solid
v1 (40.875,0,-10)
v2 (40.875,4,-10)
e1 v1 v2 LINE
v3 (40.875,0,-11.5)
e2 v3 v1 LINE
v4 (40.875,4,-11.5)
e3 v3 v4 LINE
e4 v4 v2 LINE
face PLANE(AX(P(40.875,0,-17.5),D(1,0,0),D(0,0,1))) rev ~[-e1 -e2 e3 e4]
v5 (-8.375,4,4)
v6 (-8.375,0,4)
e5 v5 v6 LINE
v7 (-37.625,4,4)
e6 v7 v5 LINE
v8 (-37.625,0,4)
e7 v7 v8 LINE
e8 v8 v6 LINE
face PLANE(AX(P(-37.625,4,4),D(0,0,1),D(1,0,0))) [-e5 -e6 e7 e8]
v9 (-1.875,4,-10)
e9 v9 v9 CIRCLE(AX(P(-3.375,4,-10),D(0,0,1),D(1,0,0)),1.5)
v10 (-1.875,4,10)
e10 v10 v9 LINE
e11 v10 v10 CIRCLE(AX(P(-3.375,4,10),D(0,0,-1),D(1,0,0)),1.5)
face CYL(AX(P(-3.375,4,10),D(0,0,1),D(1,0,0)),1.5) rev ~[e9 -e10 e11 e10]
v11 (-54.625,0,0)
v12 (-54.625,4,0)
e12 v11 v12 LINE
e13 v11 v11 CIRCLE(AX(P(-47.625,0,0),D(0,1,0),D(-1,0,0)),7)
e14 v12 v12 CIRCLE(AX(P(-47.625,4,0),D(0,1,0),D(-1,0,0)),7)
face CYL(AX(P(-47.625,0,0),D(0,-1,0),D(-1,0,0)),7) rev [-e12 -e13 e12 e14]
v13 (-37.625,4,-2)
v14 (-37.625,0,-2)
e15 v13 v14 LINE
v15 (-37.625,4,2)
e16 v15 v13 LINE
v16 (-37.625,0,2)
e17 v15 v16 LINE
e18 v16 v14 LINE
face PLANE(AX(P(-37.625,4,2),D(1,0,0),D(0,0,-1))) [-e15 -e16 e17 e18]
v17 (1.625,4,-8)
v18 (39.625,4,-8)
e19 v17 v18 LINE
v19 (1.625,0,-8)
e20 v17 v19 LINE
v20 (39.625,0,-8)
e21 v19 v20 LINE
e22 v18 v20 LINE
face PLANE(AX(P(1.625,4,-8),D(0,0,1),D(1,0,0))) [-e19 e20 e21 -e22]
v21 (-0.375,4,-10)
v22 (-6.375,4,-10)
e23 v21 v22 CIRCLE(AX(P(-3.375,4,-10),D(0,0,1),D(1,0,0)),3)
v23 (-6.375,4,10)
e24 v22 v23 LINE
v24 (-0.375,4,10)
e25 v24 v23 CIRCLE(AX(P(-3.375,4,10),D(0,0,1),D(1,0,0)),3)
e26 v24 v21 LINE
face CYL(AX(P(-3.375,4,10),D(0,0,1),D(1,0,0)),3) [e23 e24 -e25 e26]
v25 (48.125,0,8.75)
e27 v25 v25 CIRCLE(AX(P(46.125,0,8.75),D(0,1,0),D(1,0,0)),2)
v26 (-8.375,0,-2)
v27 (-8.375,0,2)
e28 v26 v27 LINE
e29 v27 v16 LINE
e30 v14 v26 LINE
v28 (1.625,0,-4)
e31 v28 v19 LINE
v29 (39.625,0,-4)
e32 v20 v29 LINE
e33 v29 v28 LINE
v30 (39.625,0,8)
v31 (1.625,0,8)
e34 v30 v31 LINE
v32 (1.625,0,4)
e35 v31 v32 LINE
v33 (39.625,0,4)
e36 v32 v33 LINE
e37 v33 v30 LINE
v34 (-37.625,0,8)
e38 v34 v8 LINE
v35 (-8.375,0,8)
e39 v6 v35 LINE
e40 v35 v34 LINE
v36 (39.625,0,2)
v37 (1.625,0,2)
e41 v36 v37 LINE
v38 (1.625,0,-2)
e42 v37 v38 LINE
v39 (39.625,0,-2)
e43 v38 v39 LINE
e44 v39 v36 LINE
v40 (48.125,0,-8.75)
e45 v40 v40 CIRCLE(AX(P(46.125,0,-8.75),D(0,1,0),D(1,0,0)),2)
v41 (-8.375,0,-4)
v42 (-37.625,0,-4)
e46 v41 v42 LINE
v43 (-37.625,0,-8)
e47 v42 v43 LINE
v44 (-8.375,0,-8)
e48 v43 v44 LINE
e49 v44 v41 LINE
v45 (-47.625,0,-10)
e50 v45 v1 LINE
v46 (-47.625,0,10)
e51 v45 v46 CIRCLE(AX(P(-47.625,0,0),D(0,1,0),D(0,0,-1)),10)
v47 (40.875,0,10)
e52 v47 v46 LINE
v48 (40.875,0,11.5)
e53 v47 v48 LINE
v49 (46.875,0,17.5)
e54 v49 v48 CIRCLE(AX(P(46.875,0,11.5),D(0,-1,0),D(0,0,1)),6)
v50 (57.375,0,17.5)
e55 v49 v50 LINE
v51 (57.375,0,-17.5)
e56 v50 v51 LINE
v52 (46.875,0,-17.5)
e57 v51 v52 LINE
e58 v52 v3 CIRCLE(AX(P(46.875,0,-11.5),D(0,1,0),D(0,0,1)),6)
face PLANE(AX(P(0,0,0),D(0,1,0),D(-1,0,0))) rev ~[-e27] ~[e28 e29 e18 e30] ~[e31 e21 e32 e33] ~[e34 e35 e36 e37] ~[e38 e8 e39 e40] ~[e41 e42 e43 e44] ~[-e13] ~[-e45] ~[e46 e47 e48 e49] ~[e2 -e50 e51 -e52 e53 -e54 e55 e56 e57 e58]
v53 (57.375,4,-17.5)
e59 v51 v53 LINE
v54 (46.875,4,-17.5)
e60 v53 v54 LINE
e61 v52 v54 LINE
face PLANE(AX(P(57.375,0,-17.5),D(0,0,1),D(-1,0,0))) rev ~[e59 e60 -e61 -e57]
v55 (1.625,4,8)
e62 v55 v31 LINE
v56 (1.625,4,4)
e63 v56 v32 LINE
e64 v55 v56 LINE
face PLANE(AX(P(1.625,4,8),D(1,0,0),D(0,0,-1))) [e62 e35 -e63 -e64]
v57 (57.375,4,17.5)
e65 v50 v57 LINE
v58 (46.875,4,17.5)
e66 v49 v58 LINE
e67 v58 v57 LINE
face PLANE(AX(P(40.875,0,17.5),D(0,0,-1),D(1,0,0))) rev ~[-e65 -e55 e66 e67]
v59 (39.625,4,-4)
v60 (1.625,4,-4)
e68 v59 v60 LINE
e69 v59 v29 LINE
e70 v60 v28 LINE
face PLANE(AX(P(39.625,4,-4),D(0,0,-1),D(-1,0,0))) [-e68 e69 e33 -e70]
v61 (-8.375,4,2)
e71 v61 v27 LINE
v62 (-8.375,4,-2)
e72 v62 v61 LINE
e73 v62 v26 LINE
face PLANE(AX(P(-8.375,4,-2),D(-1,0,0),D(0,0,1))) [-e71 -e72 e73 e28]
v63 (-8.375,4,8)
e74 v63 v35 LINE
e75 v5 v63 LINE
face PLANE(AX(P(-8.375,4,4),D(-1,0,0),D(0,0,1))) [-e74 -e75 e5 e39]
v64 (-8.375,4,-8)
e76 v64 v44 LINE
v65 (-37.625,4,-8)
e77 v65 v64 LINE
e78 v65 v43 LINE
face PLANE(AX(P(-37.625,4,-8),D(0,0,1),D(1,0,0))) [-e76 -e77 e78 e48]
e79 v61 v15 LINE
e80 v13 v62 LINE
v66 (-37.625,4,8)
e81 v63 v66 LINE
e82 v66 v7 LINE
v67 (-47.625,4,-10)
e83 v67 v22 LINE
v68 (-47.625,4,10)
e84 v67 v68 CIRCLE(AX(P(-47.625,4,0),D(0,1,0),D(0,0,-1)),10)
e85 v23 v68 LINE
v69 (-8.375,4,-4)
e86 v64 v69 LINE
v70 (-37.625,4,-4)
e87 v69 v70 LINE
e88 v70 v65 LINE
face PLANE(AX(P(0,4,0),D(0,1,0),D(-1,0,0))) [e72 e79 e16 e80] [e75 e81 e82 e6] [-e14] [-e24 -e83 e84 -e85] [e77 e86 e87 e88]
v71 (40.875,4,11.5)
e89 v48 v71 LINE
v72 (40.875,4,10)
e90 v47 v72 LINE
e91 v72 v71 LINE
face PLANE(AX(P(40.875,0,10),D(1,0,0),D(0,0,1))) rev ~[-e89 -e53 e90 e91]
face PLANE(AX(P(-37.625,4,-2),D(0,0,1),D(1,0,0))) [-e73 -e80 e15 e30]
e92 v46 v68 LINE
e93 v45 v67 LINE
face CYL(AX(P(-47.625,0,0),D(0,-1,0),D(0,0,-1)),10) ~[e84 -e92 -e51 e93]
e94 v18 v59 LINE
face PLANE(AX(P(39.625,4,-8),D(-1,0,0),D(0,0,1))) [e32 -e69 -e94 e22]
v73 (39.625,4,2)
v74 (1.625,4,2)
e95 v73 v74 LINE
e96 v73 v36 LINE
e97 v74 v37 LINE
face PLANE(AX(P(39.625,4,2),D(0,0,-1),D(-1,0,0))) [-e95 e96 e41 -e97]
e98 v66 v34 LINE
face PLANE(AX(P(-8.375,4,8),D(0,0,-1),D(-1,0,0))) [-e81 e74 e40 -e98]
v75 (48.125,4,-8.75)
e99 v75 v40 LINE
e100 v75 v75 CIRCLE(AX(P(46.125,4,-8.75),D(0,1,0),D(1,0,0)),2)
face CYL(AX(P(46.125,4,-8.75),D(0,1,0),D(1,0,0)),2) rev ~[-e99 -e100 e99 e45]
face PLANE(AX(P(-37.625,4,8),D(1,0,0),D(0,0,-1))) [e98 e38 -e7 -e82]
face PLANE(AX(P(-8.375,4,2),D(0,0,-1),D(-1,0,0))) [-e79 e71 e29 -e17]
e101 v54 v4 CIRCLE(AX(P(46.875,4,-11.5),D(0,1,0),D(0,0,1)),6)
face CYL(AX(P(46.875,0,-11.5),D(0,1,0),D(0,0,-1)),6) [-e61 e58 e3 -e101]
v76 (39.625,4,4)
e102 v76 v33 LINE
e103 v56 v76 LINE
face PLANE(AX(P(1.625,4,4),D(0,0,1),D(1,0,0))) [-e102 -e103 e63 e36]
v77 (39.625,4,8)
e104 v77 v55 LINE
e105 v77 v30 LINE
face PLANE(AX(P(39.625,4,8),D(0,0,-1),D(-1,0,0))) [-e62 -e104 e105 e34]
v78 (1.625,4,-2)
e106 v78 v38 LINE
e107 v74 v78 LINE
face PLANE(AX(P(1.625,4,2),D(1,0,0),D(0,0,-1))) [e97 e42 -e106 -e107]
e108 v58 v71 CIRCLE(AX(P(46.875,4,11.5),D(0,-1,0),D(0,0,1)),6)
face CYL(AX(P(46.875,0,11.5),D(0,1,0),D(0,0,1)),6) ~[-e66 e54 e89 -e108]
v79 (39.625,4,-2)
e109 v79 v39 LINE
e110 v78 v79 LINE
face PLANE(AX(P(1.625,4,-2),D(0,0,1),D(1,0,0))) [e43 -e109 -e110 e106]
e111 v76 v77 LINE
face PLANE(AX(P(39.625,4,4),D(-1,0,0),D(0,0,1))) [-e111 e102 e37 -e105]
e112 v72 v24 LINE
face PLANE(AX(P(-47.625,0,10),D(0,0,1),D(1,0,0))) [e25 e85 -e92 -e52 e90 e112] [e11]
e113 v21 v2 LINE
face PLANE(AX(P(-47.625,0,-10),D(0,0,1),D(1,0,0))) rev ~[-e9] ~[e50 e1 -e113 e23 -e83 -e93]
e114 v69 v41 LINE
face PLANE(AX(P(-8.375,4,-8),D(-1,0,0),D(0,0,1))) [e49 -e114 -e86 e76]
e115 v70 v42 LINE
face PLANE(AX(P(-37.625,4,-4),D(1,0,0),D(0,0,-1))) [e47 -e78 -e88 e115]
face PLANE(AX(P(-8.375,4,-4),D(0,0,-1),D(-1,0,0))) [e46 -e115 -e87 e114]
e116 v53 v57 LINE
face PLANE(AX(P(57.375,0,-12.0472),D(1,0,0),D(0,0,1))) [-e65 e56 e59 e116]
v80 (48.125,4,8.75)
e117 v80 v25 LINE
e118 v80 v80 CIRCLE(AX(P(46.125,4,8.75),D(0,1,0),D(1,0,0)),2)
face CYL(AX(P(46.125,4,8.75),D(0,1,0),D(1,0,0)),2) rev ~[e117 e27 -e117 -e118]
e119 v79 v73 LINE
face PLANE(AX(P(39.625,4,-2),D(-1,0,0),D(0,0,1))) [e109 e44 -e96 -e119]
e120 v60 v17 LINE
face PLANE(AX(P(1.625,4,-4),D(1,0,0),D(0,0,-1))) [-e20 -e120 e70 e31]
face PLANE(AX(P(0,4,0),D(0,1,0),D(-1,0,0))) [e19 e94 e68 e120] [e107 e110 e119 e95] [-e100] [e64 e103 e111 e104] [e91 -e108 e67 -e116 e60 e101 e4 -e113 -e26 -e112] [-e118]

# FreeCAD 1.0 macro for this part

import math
import FreeCAD as App
import Part
import Sketcher


def edges_at(feature, points):
    """Names of the edges that pass closest to the given points."""
    edges = feature.Shape.Edges
    near = lambda p: min(range(len(edges)), key=lambda i: edges[i].distToShape(Part.Vertex(*p))[0])
    return sorted({f"Edge{near(p) + 1}" for p in points})


def add_polygon(sketch, points):
    """Adds a closed chain of lines whose ends are joined by coincident constraints."""
    first, n = sketch.GeometryCount, len(points)
    for a, b in zip(points, points[1:] + points[:1]):
        sketch.addGeometry(Part.LineSegment(App.Vector(*a, 0), App.Vector(*b, 0)), False)
    for i in range(n):
        sketch.addConstraint(Sketcher.Constraint("Coincident", first + i, 2, first + (i + 1) % n, 1))

doc = App.newDocument("Part")
body = doc.addObject("PartDesign::Body", "Body")

# Sketch on XZ plane
sketch1 = body.newObject("Sketcher::SketchObject", "Sketch")
sketch1.AttachmentSupport = (doc.getObject("XZ_Plane"), [""])
sketch1.MapMode = "FlatFace"
sketch1.addGeometry(Part.LineSegment(App.Vector(57, 18, 0), App.Vector(57, -18, 0)), False)
sketch1.addGeometry(Part.LineSegment(App.Vector(57, -18, 0), App.Vector(41, -18, 0)), False)
sketch1.addGeometry(Part.LineSegment(App.Vector(41, -18, 0), App.Vector(41, -10, 0)), False)
sketch1.addGeometry(Part.LineSegment(App.Vector(41, -10, 0), App.Vector(-48, -10, 0)), False)
sketch1.addGeometry(Part.ArcOfCircle(Part.Circle(App.Vector(-48, 0, 0), App.Vector(0, 0, 1), 10), math.radians(90), math.radians(270)), False)
sketch1.addGeometry(Part.LineSegment(App.Vector(-48, 10, 0), App.Vector(41, 10, 0)), False)
sketch1.addGeometry(Part.LineSegment(App.Vector(41, 10, 0), App.Vector(41, 18, 0)), False)
sketch1.addGeometry(Part.LineSegment(App.Vector(41, 18, 0), App.Vector(57, 18, 0)), False)
sketch1.addGeometry(Part.Circle(App.Vector(-48, 0, 0), App.Vector(0, 0, 1), 7), False)
sketch1.addConstraint(Sketcher.Constraint("Coincident", 0, 2, 1, 1))
sketch1.addConstraint(Sketcher.Constraint("Coincident", 1, 2, 2, 1))
sketch1.addConstraint(Sketcher.Constraint("Coincident", 2, 2, 3, 1))
sketch1.addConstraint(Sketcher.Constraint("Tangent", 3, 2, 4, 2))
sketch1.addConstraint(Sketcher.Constraint("Tangent", 4, 1, 5, 1))
sketch1.addConstraint(Sketcher.Constraint("Coincident", 5, 2, 6, 1))
sketch1.addConstraint(Sketcher.Constraint("Coincident", 6, 2, 7, 1))
sketch1.addConstraint(Sketcher.Constraint("Coincident", 7, 2, 0, 1))
sketch1.addConstraint(Sketcher.Constraint("Vertical", 0))
sketch1.addConstraint(Sketcher.Constraint("Horizontal", 1))
sketch1.addConstraint(Sketcher.Constraint("Vertical", 2))
sketch1.addConstraint(Sketcher.Constraint("Horizontal", 3))
sketch1.addConstraint(Sketcher.Constraint("Horizontal", 5))
sketch1.addConstraint(Sketcher.Constraint("Vertical", 6))
sketch1.addConstraint(Sketcher.Constraint("Horizontal", 7))
sketch1.addConstraint(Sketcher.Constraint("Coincident", 8, 3, 4, 3))
sketch1.addConstraint(Sketcher.Constraint("Symmetric", 2, 2, 5, 2, -1))
sketch1.addConstraint(Sketcher.Constraint("Equal", 2, 6))
sketch1.addConstraint(Sketcher.Constraint("Diameter", 8, 14.0))
sketch1.addConstraint(Sketcher.Constraint("Radius", 4, 10.0))
sketch1.addConstraint(Sketcher.Constraint("DistanceY", 0, 2, 0, 1, 35.0))
sketch1.addConstraint(Sketcher.Constraint("DistanceX", 1, 2, 1, 1, 16.5))
sketch1.addConstraint(Sketcher.Constraint("DistanceX", 4, 3, 0, 2, 105.0))
sketch1.addConstraint(Sketcher.Constraint("DistanceX", 4, 3, -1, 1, 47.625))
pad1 = body.newObject("PartDesign::Pad", "Pad")
pad1.Profile = sketch1
pad1.Length = 4
pad1.Reversed = True

# Sketch on XZ plane
sketch2 = body.newObject("Sketcher::SketchObject", "Sketch001")
sketch2.AttachmentSupport = (doc.getObject("XZ_Plane"), [""])
sketch2.MapMode = "FlatFace"
sketch2.AttachmentOffset = App.Placement(App.Vector(0, 0, -4), App.Rotation())
sketch2.addGeometry(Part.Circle(App.Vector(46.1, 8.8, 0), App.Vector(0, 0, 1), 2), False)
sketch2.addGeometry(Part.Circle(App.Vector(46.1, -8.8, 0), App.Vector(0, 0, 1), 2), False)
sketch2.addConstraint(Sketcher.Constraint("Equal", 0, 1))
sketch2.addConstraint(Sketcher.Constraint("Symmetric", 0, 3, 1, 3, -1))
sketch2.addConstraint(Sketcher.Constraint("Diameter", 0, 4.0))
sketch2.addConstraint(Sketcher.Constraint("DistanceY", 1, 3, 0, 3, 17.5))
sketch2.addConstraint(Sketcher.Constraint("DistanceX", -1, 1, 0, 3, 46.125))
pocket1 = body.newObject("PartDesign::Pocket", "Pocket")
pocket1.Profile = sketch2
pocket1.Type = "ThroughAll"
pocket1.Reversed = True
doc.recompute()

fillet = body.newObject("PartDesign::Fillet", "Fillet")
fillet.Base = (pocket1, edges_at(pocket1, [(40.875, 2, -17.5), (40.875, 2, 17.5)]))
fillet.Radius = 6

# Sketch on XY plane
sketch3 = body.newObject("Sketcher::SketchObject", "Sketch002")
sketch3.AttachmentSupport = (doc.getObject("XY_Plane"), [""])
sketch3.MapMode = "FlatFace"
sketch3.AttachmentOffset = App.Placement(App.Vector(0, 0, 10), App.Rotation())
sketch3.addGeometry(Part.Circle(App.Vector(-3.4, 4, 0), App.Vector(0, 0, 1), 1.5), False)
sketch3.addConstraint(Sketcher.Constraint("Diameter", 0, 3.0))
sketch3.addConstraint(Sketcher.Constraint("DistanceY", -1, 1, 0, 3, 4.0))
sketch3.addConstraint(Sketcher.Constraint("DistanceX", 0, 3, -1, 1, 3.375))
pocket2 = body.newObject("PartDesign::Pocket", "Pocket001")
pocket2.Profile = sketch3
pocket2.Length = 20

# Sketch on XY plane
sketch4 = body.newObject("Sketcher::SketchObject", "Sketch003")
sketch4.AttachmentSupport = (doc.getObject("XY_Plane"), [""])
sketch4.MapMode = "FlatFace"
sketch4.AttachmentOffset = App.Placement(App.Vector(0, 0, 10), App.Rotation())
sketch4.addGeometry(Part.Circle(App.Vector(-3.4, 4, 0), App.Vector(0, 0, 1), 3), False)
sketch4.addGeometry(Part.Circle(App.Vector(-3.4, 4, 0), App.Vector(0, 0, 1), 1.5), False)
sketch4.addConstraint(Sketcher.Constraint("Coincident", 1, 3, 0, 3))
sketch4.addConstraint(Sketcher.Constraint("Diameter", 0, 6.0))
sketch4.addConstraint(Sketcher.Constraint("Diameter", 1, 3.0))
sketch4.addConstraint(Sketcher.Constraint("DistanceY", -1, 1, 0, 3, 4.0))
sketch4.addConstraint(Sketcher.Constraint("DistanceX", 0, 3, -1, 1, 3.375))
pad2 = body.newObject("PartDesign::Pad", "Pad001")
pad2.Profile = sketch4
pad2.Length = 20
pad2.Reversed = True

# Sketch on XZ plane
sketch5 = body.newObject("Sketcher::SketchObject", "Sketch004")
sketch5.AttachmentSupport = (doc.getObject("XZ_Plane"), [""])
sketch5.MapMode = "FlatFace"
sketch5.AttachmentOffset = App.Placement(App.Vector(0, 0, -4), App.Rotation())
add_polygon(sketch5, [(-8.4, -8), (-37.6, -8), (-37.6, -4), (-8.4, -4)])  # lines 0-3
add_polygon(sketch5, [(-8.4, -2), (-37.6, -2), (-37.6, 2), (-8.4, 2)])  # lines 4-7
add_polygon(sketch5, [(-8.4, 4), (-37.6, 4), (-37.6, 8), (-8.4, 8)])  # lines 8-11
add_polygon(sketch5, [(39.6, -8), (1.6, -8), (1.6, -4), (39.6, -4)])  # lines 12-15
add_polygon(sketch5, [(1.6, -2), (1.6, 2), (39.6, 2), (39.6, -2)])  # lines 16-19
add_polygon(sketch5, [(1.6, 4), (1.6, 8), (39.6, 8), (39.6, 4)])  # lines 20-23
sketch5.addConstraint(Sketcher.Constraint("Horizontal", 0))
sketch5.addConstraint(Sketcher.Constraint("Vertical", 1))
sketch5.addConstraint(Sketcher.Constraint("Horizontal", 2))
sketch5.addConstraint(Sketcher.Constraint("Vertical", 3))
sketch5.addConstraint(Sketcher.Constraint("Horizontal", 4))
sketch5.addConstraint(Sketcher.Constraint("Vertical", 5))
sketch5.addConstraint(Sketcher.Constraint("Horizontal", 6))
sketch5.addConstraint(Sketcher.Constraint("Vertical", 7))
sketch5.addConstraint(Sketcher.Constraint("Horizontal", 8))
sketch5.addConstraint(Sketcher.Constraint("Vertical", 9))
sketch5.addConstraint(Sketcher.Constraint("Horizontal", 10))
sketch5.addConstraint(Sketcher.Constraint("Vertical", 11))
sketch5.addConstraint(Sketcher.Constraint("Horizontal", 12))
sketch5.addConstraint(Sketcher.Constraint("Vertical", 13))
sketch5.addConstraint(Sketcher.Constraint("Horizontal", 14))
sketch5.addConstraint(Sketcher.Constraint("Vertical", 15))
sketch5.addConstraint(Sketcher.Constraint("Vertical", 16))
sketch5.addConstraint(Sketcher.Constraint("Horizontal", 17))
sketch5.addConstraint(Sketcher.Constraint("Vertical", 18))
sketch5.addConstraint(Sketcher.Constraint("Horizontal", 19))
sketch5.addConstraint(Sketcher.Constraint("Vertical", 20))
sketch5.addConstraint(Sketcher.Constraint("Horizontal", 21))
sketch5.addConstraint(Sketcher.Constraint("Vertical", 22))
sketch5.addConstraint(Sketcher.Constraint("Horizontal", 23))
sketch5.addConstraint(Sketcher.Constraint("Symmetric", 1, 2, 8, 2, -1))
sketch5.addConstraint(Sketcher.Constraint("Symmetric", 3, 2, 10, 2, -1))
sketch5.addConstraint(Sketcher.Constraint("Symmetric", 12, 2, 20, 2, -1))
sketch5.addConstraint(Sketcher.Constraint("Symmetric", 14, 2, 22, 2, -1))
sketch5.addConstraint(Sketcher.Constraint("Horizontal", 3, 2, 12, 2))
sketch5.addConstraint(Sketcher.Constraint("Horizontal", 2, 2, 13, 2))
sketch5.addConstraint(Sketcher.Constraint("Horizontal", 6, 2, 16, 2))
sketch5.addConstraint(Sketcher.Constraint("Horizontal", 7, 2, 18, 2))
sketch5.addConstraint(Sketcher.Constraint("Vertical", 1, 2, 4, 2))
sketch5.addConstraint(Sketcher.Constraint("Vertical", 3, 2, 6, 2))
sketch5.addConstraint(Sketcher.Constraint("Vertical", 13, 2, 16, 2))
sketch5.addConstraint(Sketcher.Constraint("Vertical", 15, 2, 17, 2))
sketch5.addConstraint(Sketcher.Constraint("Equal", 3, 5))
sketch5.addConstraint(Sketcher.Constraint("DistanceX", 12, 2, 12, 1, 38.0))
sketch5.addConstraint(Sketcher.Constraint("DistanceY", 1, 1, 1, 2, 4.0))
sketch5.addConstraint(Sketcher.Constraint("DistanceY", 1, 2, -1, 1, 4.0))
sketch5.addConstraint(Sketcher.Constraint("DistanceY", 4, 2, -1, 1, 2.0))
sketch5.addConstraint(Sketcher.Constraint("DistanceX", 3, 2, 12, 2, 10.0))
sketch5.addConstraint(Sketcher.Constraint("DistanceX", 0, 2, 0, 1, 29.25))
sketch5.addConstraint(Sketcher.Constraint("DistanceX", 0, 2, -1, 1, 37.625))
pocket3 = body.newObject("PartDesign::Pocket", "Pocket002")
pocket3.Profile = sketch5
pocket3.Type = "ThroughAll"
pocket3.Reversed = True

doc.recompute()
